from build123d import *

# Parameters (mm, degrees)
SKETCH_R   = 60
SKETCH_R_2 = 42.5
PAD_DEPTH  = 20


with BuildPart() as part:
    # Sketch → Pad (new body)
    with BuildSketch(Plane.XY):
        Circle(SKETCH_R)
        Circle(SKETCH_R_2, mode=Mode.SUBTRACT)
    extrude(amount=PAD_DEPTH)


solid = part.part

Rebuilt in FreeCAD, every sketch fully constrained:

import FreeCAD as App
import Part
import Sketcher

doc = App.newDocument("Part")
body = doc.addObject("PartDesign::Body", "Body")

sketch1 = body.newObject("Sketcher::SketchObject", "Sketch")
sketch1.AttachmentSupport = (doc.getObject("XY_Plane"), [""])
sketch1.MapMode = "FlatFace"
sketch1.addGeometry([
    Part.Circle(App.Vector(0, 0, 0), App.Vector(0, 0, 1), 60),
    Part.Circle(App.Vector(0, 0, 0), App.Vector(0, 0, 1), 42),
], False)
sketch1.addConstraint([
    Sketcher.Constraint("Coincident", 0, 3, -1, 1),
    Sketcher.Constraint("Coincident", 1, 3, -1, 1),
    Sketcher.Constraint("Diameter", 0, 120.0),
    Sketcher.Constraint("Diameter", 1, 85.0),
])
pad1 = body.newObject("PartDesign::Pad", "Pad")
pad1.Profile = sketch1
pad1.Length = 20

doc.recompute()
